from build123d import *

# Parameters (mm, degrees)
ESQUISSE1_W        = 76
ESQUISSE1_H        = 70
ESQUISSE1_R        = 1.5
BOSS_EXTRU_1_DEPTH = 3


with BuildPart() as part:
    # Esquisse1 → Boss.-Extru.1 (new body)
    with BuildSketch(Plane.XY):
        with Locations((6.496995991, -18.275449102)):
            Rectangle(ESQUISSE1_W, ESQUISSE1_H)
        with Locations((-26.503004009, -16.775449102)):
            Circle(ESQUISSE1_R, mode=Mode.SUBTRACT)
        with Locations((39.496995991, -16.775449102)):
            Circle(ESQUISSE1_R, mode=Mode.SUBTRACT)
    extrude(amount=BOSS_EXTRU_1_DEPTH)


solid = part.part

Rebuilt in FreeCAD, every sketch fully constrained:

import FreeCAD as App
import Part
import Sketcher


def add_polygon(sketch, points):
    """Adds a closed chain of lines whose ends are joined by coincident constraints."""
    first, n = sketch.GeometryCount, len(points)
    for a, b in zip(points, points[1:] + points[:1]):
        sketch.addGeometry(Part.LineSegment(App.Vector(*a, 0), App.Vector(*b, 0)), False)
    for i in range(n):
        sketch.addConstraint(Sketcher.Constraint("Coincident", first + i, 2, first + (i + 1) % n, 1))

doc = App.newDocument("Part")
params = doc.addObject("Spreadsheet::Sheet", "Params")
for row, (alias, value) in enumerate([
    ("sketch1_diameter", "3 mm"),
    ("sketch1_width", "76 mm"),
    ("sketch1_height", "70 mm"),
    ("pad1_length", "3 mm"),
], start=1):
    params.set(f"A{row}", alias)
    params.set(f"B{row}", "=" + value)
    params.setAlias(f"B{row}", alias)

body = doc.addObject("PartDesign::Body", "Body")

# Sketch on XY plane
sketch1 = doc.addObject("Sketcher::SketchObject", "Sketch")
body.addObject(sketch1)
sketch1.AttachmentSupport = (doc.XY_Plane, [""])
sketch1.MapMode = "FlatFace"
add_polygon(sketch1, [(-31.5, 16.7), (-31.5, -53.3), (44.5, -53.3), (44.5, 16.7)])  # lines 0-3
sketch1.addGeometry(Part.Circle(App.Vector(-26.5, -16.8, 0), App.Vector(0, 0, 1), 1.5), False)  # 4
sketch1.addGeometry(Part.Circle(App.Vector(39.5, -16.8, 0), App.Vector(0, 0, 1), 1.5), False)  # 5
sketch1.addConstraint(Sketcher.Constraint("Vertical", 0))
sketch1.addConstraint(Sketcher.Constraint("Horizontal", 1))
sketch1.addConstraint(Sketcher.Constraint("Vertical", 2))
sketch1.addConstraint(Sketcher.Constraint("Horizontal", 3))
sketch1.addConstraint(Sketcher.Constraint("Equal", 4, 5))
sketch1.addConstraint(Sketcher.Constraint("Horizontal", 4, 3, 5, 3))
sketch1.addConstraint(Sketcher.Constraint("Diameter", 4, 3.0))
sketch1.addConstraint(Sketcher.Constraint("DistanceX", 1, 1, 1, 2, 76.0))
sketch1.addConstraint(Sketcher.Constraint("DistanceY", 0, 2, 0, 1, 70.0))
sketch1.addConstraint(Sketcher.Constraint("DistanceX", 4, 3, 5, 3, 66.0))
sketch1.addConstraint(Sketcher.Constraint("DistanceX", 0, 2, 4, 3, 5.0))
sketch1.addConstraint(Sketcher.Constraint("DistanceY", 0, 2, 4, 3, 36.5))
sketch1.addConstraint(Sketcher.Constraint("DistanceY", 4, 3, -1, 1, 16.775449))
sketch1.addConstraint(Sketcher.Constraint("DistanceX", 4, 3, -1, 1, 26.503004))
sketch1.setExpression("Constraints[10]", "Params.sketch1_diameter")
sketch1.setExpression("Constraints[11]", "Params.sketch1_width")
sketch1.setExpression("Constraints[12]", "Params.sketch1_height")
pad1 = doc.addObject("PartDesign::Pad", "Pad")
body.addObject(pad1)
pad1.Profile = sketch1
pad1.setExpression("Length", "Params.pad1_length")

doc.recompute()
